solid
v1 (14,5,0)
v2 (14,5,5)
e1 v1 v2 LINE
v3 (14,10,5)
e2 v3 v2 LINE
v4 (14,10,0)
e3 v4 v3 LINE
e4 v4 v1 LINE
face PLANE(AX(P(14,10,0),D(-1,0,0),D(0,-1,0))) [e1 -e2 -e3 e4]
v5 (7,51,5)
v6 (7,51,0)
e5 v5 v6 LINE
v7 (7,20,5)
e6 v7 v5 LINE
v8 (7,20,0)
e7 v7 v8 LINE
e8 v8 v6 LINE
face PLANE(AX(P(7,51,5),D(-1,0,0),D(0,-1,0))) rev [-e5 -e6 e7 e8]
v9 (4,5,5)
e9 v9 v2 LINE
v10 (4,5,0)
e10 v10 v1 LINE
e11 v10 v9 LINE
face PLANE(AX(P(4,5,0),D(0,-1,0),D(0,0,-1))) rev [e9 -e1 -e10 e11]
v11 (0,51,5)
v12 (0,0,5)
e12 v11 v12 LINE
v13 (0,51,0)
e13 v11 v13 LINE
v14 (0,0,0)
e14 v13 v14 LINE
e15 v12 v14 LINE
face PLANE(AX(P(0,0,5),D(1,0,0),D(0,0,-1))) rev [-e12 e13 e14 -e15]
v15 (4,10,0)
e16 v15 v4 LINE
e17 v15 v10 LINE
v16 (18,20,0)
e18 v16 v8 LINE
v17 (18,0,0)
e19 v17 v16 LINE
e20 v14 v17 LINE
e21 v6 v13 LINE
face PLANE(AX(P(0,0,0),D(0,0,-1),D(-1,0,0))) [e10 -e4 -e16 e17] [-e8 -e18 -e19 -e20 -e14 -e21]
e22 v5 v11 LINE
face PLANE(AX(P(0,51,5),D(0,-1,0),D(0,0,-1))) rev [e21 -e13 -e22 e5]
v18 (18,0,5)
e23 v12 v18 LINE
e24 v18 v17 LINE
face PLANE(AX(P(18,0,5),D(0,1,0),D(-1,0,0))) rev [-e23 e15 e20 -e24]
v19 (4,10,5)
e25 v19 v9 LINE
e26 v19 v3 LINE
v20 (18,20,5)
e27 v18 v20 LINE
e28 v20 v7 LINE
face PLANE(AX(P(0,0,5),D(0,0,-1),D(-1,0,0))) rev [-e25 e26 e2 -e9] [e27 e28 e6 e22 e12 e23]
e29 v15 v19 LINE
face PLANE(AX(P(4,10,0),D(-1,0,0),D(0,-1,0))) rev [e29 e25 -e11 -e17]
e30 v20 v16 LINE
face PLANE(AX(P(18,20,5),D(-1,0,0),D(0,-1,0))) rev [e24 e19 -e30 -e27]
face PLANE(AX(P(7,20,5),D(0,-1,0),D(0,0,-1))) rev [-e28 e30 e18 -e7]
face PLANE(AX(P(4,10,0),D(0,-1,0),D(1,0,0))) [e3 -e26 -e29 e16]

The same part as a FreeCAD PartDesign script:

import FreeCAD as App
import Part
import Sketcher

V = App.Vector

doc = App.newDocument("Part")
body = doc.addObject("PartDesign::Body", "Body")

sketch1 = body.newObject("Sketcher::SketchObject", "Sketch")
sketch1.AttachmentSupport = (doc.getObject("XY_Plane"), [""])
sketch1.MapMode = "FlatFace"
sketch1.addGeometry([
    Part.LineSegment(V(0, 51, 0), V(0, 0, 0)),
    Part.LineSegment(V(0, 0, 0), V(18, 0, 0)),
    Part.LineSegment(V(18, 0, 0), V(18, 20, 0)),
    Part.LineSegment(V(18, 20, 0), V(7, 20, 0)),
    Part.LineSegment(V(7, 20, 0), V(7, 51, 0)),
    Part.LineSegment(V(7, 51, 0), V(0, 51, 0)),
], False)
sketch1.addConstraint([
    Sketcher.Constraint("Coincident", 0, 2, 1, 1),
    Sketcher.Constraint("Coincident", 1, 2, 2, 1),
    Sketcher.Constraint("Coincident", 2, 2, 3, 1),
    Sketcher.Constraint("Coincident", 3, 2, 4, 1),
    Sketcher.Constraint("Coincident", 4, 2, 5, 1),
    Sketcher.Constraint("Coincident", 5, 2, 0, 1),
    Sketcher.Constraint("Vertical", 0),
    Sketcher.Constraint("Horizontal", 1),
    Sketcher.Constraint("Vertical", 2),
    Sketcher.Constraint("Horizontal", 3),
    Sketcher.Constraint("Vertical", 4),
    Sketcher.Constraint("Horizontal", 5),
    Sketcher.Constraint("Coincident", 0, 2, -1, 1),
    Sketcher.Constraint("DistanceX", 1, 1, 1, 2, 18.0),
    Sketcher.Constraint("DistanceX", 3, 2, 3, 1, 11.0),
    Sketcher.Constraint("DistanceY", 0, 2, 0, 1, 51.0),
    Sketcher.Constraint("DistanceY", 2, 1, 2, 2, 20.0),
])
pad1 = body.newObject("PartDesign::Pad", "Pad")
pad1.Profile = sketch1
pad1.Length = 5

sketch2 = body.newObject("Sketcher::SketchObject", "Sketch001")
sketch2.AttachmentSupport = (doc.getObject("XY_Plane"), [""])
sketch2.MapMode = "FlatFace"
sketch2.AttachmentOffset = App.Placement(V(0, 0, 5), App.Rotation())
sketch2.addGeometry([
    Part.LineSegment(V(4, 10, 0), V(4, 5, 0)),
    Part.LineSegment(V(4, 5, 0), V(14, 5, 0)),
    Part.LineSegment(V(14, 5, 0), V(14, 10, 0)),
    Part.LineSegment(V(14, 10, 0), V(4, 10, 0)),
], False)
sketch2.addConstraint([
    Sketcher.Constraint("Coincident", 0, 2, 1, 1),
    Sketcher.Constraint("Coincident", 1, 2, 2, 1),
    Sketcher.Constraint("Coincident", 2, 2, 3, 1),
    Sketcher.Constraint("Coincident", 3, 2, 0, 1),
    Sketcher.Constraint("Vertical", 0),
    Sketcher.Constraint("Horizontal", 1),
    Sketcher.Constraint("Vertical", 2),
    Sketcher.Constraint("Horizontal", 3),
    Sketcher.Constraint("DistanceX", 1, 1, 1, 2, 10.0),
    Sketcher.Constraint("DistanceY", 0, 2, 0, 1, 5.0),
    Sketcher.Constraint("DistanceX", -1, 1, 0, 2, 4.0),
    Sketcher.Constraint("DistanceY", -1, 1, 0, 2, 5.0),
])
pocket1 = body.newObject("PartDesign::Pocket", "Pocket")
pocket1.Profile = sketch2
pocket1.Type = "ThroughAll"

doc.recompute()
